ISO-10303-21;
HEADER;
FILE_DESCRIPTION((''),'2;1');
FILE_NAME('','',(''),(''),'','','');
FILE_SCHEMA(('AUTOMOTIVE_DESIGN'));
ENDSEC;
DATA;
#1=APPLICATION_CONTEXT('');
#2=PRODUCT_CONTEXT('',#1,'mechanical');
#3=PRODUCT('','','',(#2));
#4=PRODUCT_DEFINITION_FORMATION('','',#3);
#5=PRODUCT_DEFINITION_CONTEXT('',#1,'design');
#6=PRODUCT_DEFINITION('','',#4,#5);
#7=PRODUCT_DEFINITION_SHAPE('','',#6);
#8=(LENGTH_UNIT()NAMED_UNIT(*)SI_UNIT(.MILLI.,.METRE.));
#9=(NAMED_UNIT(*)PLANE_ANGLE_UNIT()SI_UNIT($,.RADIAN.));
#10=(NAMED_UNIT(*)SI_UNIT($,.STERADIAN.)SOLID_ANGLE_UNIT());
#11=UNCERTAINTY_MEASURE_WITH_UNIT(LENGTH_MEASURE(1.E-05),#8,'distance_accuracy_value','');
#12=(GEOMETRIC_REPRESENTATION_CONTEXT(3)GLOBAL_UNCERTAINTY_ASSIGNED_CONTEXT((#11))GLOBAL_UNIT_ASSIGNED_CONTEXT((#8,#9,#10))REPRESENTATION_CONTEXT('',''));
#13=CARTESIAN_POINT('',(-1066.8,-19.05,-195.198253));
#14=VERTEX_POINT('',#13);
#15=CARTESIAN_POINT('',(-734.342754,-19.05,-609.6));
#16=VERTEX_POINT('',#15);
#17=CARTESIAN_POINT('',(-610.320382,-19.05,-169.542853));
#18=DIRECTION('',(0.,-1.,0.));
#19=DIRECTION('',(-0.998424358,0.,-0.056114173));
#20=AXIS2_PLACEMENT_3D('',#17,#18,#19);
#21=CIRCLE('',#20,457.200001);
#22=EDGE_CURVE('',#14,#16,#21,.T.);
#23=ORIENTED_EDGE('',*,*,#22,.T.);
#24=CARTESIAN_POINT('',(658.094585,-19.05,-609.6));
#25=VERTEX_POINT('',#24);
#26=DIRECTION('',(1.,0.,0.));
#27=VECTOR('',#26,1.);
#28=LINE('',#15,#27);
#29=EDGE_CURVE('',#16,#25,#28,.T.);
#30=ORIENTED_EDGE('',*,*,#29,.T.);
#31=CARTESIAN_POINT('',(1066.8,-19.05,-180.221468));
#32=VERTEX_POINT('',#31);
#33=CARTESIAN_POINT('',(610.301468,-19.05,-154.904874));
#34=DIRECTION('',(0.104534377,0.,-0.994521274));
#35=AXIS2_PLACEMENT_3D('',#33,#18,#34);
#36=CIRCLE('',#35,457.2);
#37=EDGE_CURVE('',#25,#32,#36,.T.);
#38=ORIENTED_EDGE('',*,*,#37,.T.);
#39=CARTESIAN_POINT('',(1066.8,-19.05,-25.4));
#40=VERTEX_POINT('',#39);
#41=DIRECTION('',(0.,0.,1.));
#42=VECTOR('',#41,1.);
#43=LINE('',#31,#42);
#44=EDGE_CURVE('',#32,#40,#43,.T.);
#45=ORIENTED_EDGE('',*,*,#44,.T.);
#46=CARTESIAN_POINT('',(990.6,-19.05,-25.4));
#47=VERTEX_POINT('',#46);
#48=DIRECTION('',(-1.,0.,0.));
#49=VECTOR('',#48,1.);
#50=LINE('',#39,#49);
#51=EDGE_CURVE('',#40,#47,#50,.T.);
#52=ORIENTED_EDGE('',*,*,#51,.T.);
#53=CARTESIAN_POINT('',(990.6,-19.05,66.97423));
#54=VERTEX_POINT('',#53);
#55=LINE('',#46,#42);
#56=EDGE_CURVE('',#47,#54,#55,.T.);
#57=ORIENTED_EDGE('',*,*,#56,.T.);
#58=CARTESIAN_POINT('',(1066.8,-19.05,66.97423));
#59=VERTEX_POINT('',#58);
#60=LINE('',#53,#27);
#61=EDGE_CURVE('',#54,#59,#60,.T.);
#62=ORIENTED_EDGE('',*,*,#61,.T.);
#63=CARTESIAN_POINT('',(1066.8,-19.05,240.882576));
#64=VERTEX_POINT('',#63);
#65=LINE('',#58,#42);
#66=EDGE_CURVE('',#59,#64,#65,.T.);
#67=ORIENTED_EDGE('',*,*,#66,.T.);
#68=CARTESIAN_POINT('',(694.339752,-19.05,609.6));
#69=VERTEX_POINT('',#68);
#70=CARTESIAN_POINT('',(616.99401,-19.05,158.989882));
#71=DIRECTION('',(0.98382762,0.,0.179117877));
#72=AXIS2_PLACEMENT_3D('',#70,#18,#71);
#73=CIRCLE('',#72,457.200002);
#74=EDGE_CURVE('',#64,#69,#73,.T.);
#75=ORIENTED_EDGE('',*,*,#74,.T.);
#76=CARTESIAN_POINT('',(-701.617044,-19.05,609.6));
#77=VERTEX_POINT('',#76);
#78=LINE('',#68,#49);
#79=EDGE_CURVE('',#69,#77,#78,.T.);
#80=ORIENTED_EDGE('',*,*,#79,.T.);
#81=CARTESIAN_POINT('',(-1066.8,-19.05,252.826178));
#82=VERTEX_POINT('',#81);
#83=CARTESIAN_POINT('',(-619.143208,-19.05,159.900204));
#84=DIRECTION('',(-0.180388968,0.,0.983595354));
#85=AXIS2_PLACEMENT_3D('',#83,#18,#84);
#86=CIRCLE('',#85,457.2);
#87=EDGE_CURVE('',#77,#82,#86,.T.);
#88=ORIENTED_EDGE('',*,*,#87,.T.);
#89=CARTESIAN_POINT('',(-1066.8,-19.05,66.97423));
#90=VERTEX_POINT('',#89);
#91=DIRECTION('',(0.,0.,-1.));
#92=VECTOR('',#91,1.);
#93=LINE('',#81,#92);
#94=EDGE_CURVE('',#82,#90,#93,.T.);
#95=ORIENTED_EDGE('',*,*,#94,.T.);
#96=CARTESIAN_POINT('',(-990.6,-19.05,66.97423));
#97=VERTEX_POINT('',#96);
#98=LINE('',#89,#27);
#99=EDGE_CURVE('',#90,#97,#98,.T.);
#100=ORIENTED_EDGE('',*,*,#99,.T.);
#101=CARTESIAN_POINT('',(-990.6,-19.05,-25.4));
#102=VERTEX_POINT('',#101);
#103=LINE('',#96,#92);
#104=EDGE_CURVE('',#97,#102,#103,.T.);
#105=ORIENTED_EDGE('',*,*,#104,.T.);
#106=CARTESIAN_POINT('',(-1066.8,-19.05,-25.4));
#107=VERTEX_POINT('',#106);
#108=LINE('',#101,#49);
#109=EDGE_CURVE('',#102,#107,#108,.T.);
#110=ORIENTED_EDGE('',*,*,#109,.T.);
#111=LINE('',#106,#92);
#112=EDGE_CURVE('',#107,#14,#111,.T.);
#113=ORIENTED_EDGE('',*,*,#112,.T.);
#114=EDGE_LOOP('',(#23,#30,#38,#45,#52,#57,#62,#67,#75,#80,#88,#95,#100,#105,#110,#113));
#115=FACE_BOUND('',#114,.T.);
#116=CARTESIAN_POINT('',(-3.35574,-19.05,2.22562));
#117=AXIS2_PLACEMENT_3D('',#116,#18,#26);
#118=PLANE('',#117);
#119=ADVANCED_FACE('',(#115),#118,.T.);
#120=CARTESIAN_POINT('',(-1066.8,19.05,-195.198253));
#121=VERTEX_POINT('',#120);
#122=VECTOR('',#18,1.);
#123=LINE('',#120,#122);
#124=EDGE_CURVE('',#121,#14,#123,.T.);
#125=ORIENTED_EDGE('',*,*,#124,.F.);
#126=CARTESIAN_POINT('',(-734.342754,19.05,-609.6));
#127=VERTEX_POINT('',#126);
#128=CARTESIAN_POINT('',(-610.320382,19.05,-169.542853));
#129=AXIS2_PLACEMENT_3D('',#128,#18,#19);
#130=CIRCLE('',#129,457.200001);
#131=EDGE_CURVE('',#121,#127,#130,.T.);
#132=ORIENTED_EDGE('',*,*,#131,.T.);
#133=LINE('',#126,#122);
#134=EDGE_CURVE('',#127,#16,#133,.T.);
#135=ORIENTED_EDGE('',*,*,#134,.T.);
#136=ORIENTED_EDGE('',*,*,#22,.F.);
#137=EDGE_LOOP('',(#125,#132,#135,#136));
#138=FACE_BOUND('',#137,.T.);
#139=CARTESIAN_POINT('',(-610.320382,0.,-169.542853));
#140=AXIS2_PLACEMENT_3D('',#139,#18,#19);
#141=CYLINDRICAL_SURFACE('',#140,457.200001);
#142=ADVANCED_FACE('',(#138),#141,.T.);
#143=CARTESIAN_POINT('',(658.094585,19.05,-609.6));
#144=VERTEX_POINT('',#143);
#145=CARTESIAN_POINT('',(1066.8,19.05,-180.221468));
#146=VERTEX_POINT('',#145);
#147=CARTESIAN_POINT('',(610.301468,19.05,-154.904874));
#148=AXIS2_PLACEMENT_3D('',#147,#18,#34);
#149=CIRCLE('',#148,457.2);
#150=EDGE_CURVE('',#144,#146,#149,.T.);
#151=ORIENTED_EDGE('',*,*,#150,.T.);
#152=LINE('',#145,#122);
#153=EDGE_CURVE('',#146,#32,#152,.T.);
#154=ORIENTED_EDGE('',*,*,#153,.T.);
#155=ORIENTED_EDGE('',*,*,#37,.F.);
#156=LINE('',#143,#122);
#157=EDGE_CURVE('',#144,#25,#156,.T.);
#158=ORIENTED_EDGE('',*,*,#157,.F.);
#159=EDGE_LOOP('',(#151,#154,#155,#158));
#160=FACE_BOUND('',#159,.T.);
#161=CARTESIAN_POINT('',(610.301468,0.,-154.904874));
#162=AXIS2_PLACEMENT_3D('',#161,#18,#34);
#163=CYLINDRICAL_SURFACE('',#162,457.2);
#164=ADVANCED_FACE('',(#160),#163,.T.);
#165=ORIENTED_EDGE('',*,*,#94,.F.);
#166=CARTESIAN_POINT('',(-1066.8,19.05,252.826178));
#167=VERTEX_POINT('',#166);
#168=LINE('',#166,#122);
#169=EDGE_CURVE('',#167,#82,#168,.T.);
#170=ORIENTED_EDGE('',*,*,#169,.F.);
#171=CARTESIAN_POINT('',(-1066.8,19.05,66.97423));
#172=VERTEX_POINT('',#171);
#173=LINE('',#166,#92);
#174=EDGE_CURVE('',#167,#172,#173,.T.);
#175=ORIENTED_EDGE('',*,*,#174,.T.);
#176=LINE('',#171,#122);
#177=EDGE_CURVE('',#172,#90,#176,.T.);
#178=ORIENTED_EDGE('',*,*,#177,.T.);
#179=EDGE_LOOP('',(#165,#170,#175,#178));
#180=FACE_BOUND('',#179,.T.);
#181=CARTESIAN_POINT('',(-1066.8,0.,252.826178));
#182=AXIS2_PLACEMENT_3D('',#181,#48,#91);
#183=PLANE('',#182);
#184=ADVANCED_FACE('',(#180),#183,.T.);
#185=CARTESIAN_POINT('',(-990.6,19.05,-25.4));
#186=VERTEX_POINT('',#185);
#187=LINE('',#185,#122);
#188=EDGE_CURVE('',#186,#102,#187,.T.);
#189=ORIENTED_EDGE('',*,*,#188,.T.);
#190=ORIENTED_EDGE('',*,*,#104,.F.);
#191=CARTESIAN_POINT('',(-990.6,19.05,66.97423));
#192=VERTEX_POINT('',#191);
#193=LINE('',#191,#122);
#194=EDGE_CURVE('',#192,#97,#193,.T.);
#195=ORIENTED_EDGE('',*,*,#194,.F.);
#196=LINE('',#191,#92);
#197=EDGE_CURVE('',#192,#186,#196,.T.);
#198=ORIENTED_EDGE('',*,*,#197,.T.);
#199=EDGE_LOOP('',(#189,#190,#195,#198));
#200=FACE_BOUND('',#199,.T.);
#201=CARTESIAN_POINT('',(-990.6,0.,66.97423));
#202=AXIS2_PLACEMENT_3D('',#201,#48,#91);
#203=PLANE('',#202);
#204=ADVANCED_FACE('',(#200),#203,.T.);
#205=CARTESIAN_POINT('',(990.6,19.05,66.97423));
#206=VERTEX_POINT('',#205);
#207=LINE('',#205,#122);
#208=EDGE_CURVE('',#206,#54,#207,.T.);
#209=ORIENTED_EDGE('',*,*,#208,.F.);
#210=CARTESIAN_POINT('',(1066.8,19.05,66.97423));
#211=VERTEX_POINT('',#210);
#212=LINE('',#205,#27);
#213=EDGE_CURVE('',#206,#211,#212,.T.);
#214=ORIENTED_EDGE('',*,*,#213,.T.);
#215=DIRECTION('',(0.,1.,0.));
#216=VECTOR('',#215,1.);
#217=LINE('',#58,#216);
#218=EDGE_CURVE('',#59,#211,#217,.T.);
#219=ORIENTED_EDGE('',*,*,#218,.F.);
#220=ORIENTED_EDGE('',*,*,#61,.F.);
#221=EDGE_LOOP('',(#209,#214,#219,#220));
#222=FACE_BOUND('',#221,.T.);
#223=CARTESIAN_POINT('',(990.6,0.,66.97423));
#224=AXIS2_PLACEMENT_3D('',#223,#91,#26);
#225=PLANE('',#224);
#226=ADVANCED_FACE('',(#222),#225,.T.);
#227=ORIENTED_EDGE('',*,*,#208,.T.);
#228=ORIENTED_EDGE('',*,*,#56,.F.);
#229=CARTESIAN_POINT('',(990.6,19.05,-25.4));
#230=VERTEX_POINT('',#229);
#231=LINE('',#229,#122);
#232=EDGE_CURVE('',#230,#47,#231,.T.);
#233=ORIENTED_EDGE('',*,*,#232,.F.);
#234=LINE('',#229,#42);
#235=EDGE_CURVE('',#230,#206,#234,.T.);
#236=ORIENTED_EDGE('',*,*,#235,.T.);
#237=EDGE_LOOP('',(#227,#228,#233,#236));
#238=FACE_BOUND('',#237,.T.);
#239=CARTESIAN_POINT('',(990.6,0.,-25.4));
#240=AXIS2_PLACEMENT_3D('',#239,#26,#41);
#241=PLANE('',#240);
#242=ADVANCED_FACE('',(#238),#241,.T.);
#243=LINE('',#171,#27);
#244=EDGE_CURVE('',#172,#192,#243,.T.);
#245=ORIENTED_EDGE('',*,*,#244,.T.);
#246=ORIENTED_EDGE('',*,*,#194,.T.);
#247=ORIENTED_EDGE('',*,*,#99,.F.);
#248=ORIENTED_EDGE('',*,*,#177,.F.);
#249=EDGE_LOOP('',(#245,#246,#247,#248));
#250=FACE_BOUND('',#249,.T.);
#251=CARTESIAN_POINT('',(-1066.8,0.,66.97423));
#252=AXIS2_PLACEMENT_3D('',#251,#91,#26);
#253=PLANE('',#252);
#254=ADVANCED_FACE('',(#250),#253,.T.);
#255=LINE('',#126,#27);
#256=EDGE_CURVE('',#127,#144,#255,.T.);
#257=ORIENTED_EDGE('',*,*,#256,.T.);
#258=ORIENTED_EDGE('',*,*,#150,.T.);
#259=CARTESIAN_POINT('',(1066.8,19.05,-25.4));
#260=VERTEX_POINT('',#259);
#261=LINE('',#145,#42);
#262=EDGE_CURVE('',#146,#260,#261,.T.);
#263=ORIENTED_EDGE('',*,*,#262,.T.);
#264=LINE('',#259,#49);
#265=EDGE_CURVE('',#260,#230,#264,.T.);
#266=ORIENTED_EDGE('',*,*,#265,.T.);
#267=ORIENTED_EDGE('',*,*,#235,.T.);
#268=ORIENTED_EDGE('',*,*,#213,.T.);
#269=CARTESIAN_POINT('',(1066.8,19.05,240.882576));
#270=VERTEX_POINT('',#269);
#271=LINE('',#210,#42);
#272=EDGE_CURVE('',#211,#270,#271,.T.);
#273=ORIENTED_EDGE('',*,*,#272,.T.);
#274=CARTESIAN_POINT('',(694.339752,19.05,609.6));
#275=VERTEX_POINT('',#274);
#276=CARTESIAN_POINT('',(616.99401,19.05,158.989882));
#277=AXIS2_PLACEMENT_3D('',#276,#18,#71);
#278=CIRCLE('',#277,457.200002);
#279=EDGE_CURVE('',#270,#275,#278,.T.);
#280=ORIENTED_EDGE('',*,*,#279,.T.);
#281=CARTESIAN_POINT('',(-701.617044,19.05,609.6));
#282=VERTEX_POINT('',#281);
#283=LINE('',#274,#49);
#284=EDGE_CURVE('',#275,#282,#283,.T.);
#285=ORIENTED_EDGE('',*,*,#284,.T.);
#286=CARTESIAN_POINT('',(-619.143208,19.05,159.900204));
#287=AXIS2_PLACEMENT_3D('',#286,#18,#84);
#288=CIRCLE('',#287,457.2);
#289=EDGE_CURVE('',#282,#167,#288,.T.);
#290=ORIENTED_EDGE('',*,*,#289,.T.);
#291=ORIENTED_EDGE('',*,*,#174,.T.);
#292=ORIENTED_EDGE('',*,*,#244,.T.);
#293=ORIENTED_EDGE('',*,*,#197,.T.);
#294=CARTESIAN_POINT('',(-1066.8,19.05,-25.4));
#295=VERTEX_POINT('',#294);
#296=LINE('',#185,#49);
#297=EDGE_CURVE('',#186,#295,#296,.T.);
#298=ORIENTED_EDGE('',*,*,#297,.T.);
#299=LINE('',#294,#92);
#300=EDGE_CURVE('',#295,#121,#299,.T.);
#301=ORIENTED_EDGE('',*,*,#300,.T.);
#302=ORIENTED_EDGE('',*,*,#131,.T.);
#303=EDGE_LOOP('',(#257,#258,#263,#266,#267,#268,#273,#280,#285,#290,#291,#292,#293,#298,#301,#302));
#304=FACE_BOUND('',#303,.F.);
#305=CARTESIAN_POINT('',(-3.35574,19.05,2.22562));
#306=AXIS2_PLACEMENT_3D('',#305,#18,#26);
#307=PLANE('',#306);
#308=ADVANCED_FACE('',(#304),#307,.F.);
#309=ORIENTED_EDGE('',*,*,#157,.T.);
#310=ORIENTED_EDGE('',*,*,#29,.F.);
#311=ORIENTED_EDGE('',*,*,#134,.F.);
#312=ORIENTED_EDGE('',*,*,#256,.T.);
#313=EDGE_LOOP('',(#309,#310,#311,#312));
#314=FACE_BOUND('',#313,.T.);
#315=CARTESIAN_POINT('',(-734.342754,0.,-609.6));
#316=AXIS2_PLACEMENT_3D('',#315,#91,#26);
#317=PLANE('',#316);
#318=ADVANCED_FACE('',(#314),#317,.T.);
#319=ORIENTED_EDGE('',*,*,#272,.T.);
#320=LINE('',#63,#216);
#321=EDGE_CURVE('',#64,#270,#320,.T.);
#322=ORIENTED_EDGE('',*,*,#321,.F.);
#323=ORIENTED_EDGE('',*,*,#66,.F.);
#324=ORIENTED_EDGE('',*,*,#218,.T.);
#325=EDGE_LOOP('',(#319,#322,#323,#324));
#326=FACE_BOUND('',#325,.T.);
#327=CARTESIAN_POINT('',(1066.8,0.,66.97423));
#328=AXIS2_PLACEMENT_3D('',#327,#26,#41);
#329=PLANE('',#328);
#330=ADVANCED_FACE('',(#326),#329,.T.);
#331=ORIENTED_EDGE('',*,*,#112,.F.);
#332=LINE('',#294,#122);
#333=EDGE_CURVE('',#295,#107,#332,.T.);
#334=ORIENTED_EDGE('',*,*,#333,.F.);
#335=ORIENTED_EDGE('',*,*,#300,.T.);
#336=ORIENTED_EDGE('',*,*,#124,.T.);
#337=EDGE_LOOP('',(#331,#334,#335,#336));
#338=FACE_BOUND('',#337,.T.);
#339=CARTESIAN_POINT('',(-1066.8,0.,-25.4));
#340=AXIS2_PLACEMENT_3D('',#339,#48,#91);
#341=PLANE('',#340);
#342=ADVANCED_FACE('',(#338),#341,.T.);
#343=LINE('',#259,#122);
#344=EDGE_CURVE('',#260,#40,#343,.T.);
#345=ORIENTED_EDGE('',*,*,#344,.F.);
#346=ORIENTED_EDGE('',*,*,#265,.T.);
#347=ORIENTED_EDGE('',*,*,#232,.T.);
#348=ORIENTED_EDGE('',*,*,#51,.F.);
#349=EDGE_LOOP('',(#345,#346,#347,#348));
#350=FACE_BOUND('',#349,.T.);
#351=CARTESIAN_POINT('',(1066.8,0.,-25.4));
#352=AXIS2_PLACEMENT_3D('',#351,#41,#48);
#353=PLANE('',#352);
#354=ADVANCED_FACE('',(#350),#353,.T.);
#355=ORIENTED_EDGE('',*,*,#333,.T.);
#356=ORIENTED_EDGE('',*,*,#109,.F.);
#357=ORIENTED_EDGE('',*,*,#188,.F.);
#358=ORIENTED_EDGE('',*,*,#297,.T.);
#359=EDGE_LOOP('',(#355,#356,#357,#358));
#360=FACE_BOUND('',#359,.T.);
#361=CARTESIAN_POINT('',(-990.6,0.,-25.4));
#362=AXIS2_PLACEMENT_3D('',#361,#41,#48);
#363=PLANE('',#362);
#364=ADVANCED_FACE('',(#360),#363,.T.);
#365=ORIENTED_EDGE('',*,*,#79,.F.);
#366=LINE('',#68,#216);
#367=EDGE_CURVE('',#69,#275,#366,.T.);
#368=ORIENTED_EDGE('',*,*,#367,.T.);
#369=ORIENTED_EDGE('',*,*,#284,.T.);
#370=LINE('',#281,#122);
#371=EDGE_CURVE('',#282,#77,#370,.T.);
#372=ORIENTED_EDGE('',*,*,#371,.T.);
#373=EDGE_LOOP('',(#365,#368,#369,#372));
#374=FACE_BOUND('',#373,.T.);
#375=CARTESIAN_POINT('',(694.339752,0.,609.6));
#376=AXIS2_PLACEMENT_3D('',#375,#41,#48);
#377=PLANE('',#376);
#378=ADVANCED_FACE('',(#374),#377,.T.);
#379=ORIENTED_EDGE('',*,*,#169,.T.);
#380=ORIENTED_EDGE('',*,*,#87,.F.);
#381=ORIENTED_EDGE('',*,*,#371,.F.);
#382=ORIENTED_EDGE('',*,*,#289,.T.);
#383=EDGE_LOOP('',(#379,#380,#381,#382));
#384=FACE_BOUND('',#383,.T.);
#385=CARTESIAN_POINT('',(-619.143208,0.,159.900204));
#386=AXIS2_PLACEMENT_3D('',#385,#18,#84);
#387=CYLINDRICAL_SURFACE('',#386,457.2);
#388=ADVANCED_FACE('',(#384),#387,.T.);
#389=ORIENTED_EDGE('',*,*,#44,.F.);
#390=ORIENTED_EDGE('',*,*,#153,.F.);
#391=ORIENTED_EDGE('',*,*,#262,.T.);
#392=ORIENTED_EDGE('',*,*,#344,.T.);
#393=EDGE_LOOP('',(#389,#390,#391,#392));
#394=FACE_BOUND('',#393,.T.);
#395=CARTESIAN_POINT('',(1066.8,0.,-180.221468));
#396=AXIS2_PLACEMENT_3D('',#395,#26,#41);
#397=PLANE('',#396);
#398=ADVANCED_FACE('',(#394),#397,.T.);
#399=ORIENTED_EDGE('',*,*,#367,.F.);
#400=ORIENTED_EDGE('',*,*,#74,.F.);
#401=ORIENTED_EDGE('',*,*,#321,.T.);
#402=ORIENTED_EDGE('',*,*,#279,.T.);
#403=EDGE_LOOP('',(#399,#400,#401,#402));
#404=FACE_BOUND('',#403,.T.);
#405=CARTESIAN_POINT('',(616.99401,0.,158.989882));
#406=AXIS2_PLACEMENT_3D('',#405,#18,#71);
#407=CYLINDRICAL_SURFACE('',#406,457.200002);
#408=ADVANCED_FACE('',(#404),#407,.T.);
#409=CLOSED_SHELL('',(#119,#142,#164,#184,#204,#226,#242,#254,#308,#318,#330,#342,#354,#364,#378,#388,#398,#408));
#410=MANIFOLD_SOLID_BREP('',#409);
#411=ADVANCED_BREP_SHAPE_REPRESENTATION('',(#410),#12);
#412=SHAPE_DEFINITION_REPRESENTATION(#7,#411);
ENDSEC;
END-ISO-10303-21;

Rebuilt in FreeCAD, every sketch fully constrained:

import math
import FreeCAD as App
import Part
import Sketcher
from FreeCAD import Vector
Q = App.Units.Quantity

doc = App.newDocument("Part")
body = doc.addObject("PartDesign::Body", "Body")

# Sketch on XZ plane
sketch1 = doc.addObject("Sketcher::SketchObject", "Sketch")
body.addObject(sketch1)
sketch1.AttachmentSupport = (doc.XZ_Plane, [""])
sketch1.MapMode = "FlatFace"
sketch1.addGeometry(Part.LineSegment(Vector(694.339752, 609.6, 0), Vector(-701.617044, 609.6, 0)), False)
sketch1.addGeometry(Part.ArcOfCircle(Part.Circle(Vector(-619.143208, 159.900204, 0), Vector(0, 0, 1), 457.2), math.radians(100.392417), math.radians(168.272916)), False)
sketch1.addGeometry(Part.LineSegment(Vector(-1066.8, 252.826178, 0), Vector(-1066.8, 66.97423, 0)), False)
sketch1.addGeometry(Part.LineSegment(Vector(-1066.8, 66.97423, 0), Vector(-990.6, 66.97423, 0)), False)
sketch1.addGeometry(Part.LineSegment(Vector(-990.6, 66.97423, 0), Vector(-990.6, -25.4, 0)), False)
sketch1.addGeometry(Part.LineSegment(Vector(-990.6, -25.4, 0), Vector(-1066.8, -25.4, 0)), False)
sketch1.addGeometry(Part.LineSegment(Vector(-1066.8, -25.4, 0), Vector(-1066.8, -195.198253, 0)), False)
sketch1.addGeometry(Part.ArcOfCircle(Part.Circle(Vector(-610.320382, -169.542853, 0), Vector(0, 0, 1), 457.200001), math.radians(-176.783205), math.radians(-105.739557)), False)
sketch1.addGeometry(Part.LineSegment(Vector(-734.342754, -609.6, 0), Vector(658.094585, -609.6, 0)), False)
sketch1.addGeometry(Part.ArcOfCircle(Part.Circle(Vector(610.301468, -154.904874, 0), Vector(0, 0, 1), 457.2), math.radians(-83.999659), math.radians(-3.17427)), False)
sketch1.addGeometry(Part.LineSegment(Vector(1066.8, -180.221468, 0), Vector(1066.8, -25.4, 0)), False)
sketch1.addGeometry(Part.LineSegment(Vector(1066.8, -25.4, 0), Vector(990.6, -25.4, 0)), False)
sketch1.addGeometry(Part.LineSegment(Vector(990.6, -25.4, 0), Vector(990.6, 66.97423, 0)), False)
sketch1.addGeometry(Part.LineSegment(Vector(990.6, 66.97423, 0), Vector(1066.8, 66.97423, 0)), False)
sketch1.addGeometry(Part.LineSegment(Vector(1066.8, 66.97423, 0), Vector(1066.8, 240.882576, 0)), False)
sketch1.addGeometry(Part.ArcOfCircle(Part.Circle(Vector(616.99401, 158.989882, 0), Vector(0, 0, 1), 457.200002), math.radians(10.318383), math.radians(80.260281)), False)
sketch1.addConstraint(Sketcher.Constraint("Coincident", 0, 2, 1, 1))
sketch1.addConstraint(Sketcher.Constraint("Coincident", 1, 2, 2, 1))
sketch1.addConstraint(Sketcher.Constraint("Coincident", 2, 2, 3, 1))
sketch1.addConstraint(Sketcher.Constraint("Coincident", 3, 2, 4, 1))
sketch1.addConstraint(Sketcher.Constraint("Coincident", 4, 2, 5, 1))
sketch1.addConstraint(Sketcher.Constraint("Coincident", 5, 2, 6, 1))
sketch1.addConstraint(Sketcher.Constraint("Coincident", 6, 2, 7, 1))
sketch1.addConstraint(Sketcher.Constraint("Coincident", 7, 2, 8, 1))
sketch1.addConstraint(Sketcher.Constraint("Coincident", 8, 2, 9, 1))
sketch1.addConstraint(Sketcher.Constraint("Coincident", 9, 2, 10, 1))
sketch1.addConstraint(Sketcher.Constraint("Coincident", 10, 2, 11, 1))
sketch1.addConstraint(Sketcher.Constraint("Coincident", 11, 2, 12, 1))
sketch1.addConstraint(Sketcher.Constraint("Coincident", 12, 2, 13, 1))
sketch1.addConstraint(Sketcher.Constraint("Coincident", 13, 2, 14, 1))
sketch1.addConstraint(Sketcher.Constraint("Coincident", 14, 2, 15, 1))
sketch1.addConstraint(Sketcher.Constraint("Coincident", 15, 2, 0, 1))
sketch1.addConstraint(Sketcher.Constraint("Horizontal", 0))
sketch1.addConstraint(Sketcher.Constraint("Vertical", 2))
sketch1.addConstraint(Sketcher.Constraint("Horizontal", 3))
sketch1.addConstraint(Sketcher.Constraint("Vertical", 4))
sketch1.addConstraint(Sketcher.Constraint("Horizontal", 5))
sketch1.addConstraint(Sketcher.Constraint("Vertical", 6))
sketch1.addConstraint(Sketcher.Constraint("Horizontal", 8))
sketch1.addConstraint(Sketcher.Constraint("Vertical", 10))
sketch1.addConstraint(Sketcher.Constraint("Horizontal", 11))
sketch1.addConstraint(Sketcher.Constraint("Vertical", 12))
sketch1.addConstraint(Sketcher.Constraint("Horizontal", 13))
sketch1.addConstraint(Sketcher.Constraint("Vertical", 14))
sketch1.addConstraint(Sketcher.Constraint("Equal", 1, 7))
sketch1.addConstraint(Sketcher.Constraint("Equal", 7, 9))
sketch1.addConstraint(Sketcher.Constraint("Equal", 7, 15))
sketch1.addConstraint(Sketcher.Constraint("Symmetric", 5, 2, 10, 2, -2))
sketch1.addConstraint(Sketcher.Constraint("Symmetric", 3, 2, 12, 2, -2))
sketch1.addConstraint(Sketcher.Constraint("Vertical", 2, 2, 5, 2))
sketch1.addConstraint(Sketcher.Constraint("Vertical", 10, 2, 13, 2))
sketch1.addConstraint(Sketcher.Constraint("Radius", 1, Q("18 in")))
sketch1.addConstraint(Sketcher.Constraint("DistanceX", 3, 1, 3, 2, Q("3 in")))
sketch1.addConstraint(Sketcher.Constraint("DistanceY", -1, 1, 0, 2, Q("24 in")))
sketch1.addConstraint(Sketcher.Constraint("DistanceX", 1, 2, -1, 1, Q("42 in")))
sketch1.addConstraint(Sketcher.Constraint("DistanceY", 4, 2, -1, 1, Q("1 in")))
sketch1.addConstraint(Sketcher.Constraint("DistanceY", 7, 2, -1, 1, Q("24 in")))
sketch1.addConstraint(Sketcher.Constraint("DistanceX", 8, 1, 8, 2, Q("1392.437339 mm")))
sketch1.addConstraint(Sketcher.Constraint("DistanceY", 2, 2, 2, 1, Q("185.851948 mm")))
sketch1.addConstraint(Sketcher.Constraint("DistanceY", 4, 2, 4, 1, Q("92.37423 mm")))
sketch1.addConstraint(Sketcher.Constraint("DistanceX", 0, 2, 0, 1, Q("1395.956796 mm")))
sketch1.addConstraint(Sketcher.Constraint("DistanceY", 6, 2, 6, 1, Q("169.798253 mm")))
sketch1.addConstraint(Sketcher.Constraint("DistanceY", 10, 1, 10, 2, Q("154.821468 mm")))
sketch1.addConstraint(Sketcher.Constraint("DistanceY", 14, 1, 14, 2, Q("173.908346 mm")))
sketch1.addConstraint(Sketcher.Constraint("DistanceX", 7, 3, -1, 1, Q("610.320382 mm")))
sketch1.addConstraint(Sketcher.Constraint("DistanceX", -1, 1, 15, 3, Q("616.99401 mm")))
pad1 = doc.addObject("PartDesign::Pad", "Pad")
body.addObject(pad1)
pad1.Profile = sketch1
pad1.Length = Q("1.5 in")
pad1.Midplane = True

doc.recompute()
